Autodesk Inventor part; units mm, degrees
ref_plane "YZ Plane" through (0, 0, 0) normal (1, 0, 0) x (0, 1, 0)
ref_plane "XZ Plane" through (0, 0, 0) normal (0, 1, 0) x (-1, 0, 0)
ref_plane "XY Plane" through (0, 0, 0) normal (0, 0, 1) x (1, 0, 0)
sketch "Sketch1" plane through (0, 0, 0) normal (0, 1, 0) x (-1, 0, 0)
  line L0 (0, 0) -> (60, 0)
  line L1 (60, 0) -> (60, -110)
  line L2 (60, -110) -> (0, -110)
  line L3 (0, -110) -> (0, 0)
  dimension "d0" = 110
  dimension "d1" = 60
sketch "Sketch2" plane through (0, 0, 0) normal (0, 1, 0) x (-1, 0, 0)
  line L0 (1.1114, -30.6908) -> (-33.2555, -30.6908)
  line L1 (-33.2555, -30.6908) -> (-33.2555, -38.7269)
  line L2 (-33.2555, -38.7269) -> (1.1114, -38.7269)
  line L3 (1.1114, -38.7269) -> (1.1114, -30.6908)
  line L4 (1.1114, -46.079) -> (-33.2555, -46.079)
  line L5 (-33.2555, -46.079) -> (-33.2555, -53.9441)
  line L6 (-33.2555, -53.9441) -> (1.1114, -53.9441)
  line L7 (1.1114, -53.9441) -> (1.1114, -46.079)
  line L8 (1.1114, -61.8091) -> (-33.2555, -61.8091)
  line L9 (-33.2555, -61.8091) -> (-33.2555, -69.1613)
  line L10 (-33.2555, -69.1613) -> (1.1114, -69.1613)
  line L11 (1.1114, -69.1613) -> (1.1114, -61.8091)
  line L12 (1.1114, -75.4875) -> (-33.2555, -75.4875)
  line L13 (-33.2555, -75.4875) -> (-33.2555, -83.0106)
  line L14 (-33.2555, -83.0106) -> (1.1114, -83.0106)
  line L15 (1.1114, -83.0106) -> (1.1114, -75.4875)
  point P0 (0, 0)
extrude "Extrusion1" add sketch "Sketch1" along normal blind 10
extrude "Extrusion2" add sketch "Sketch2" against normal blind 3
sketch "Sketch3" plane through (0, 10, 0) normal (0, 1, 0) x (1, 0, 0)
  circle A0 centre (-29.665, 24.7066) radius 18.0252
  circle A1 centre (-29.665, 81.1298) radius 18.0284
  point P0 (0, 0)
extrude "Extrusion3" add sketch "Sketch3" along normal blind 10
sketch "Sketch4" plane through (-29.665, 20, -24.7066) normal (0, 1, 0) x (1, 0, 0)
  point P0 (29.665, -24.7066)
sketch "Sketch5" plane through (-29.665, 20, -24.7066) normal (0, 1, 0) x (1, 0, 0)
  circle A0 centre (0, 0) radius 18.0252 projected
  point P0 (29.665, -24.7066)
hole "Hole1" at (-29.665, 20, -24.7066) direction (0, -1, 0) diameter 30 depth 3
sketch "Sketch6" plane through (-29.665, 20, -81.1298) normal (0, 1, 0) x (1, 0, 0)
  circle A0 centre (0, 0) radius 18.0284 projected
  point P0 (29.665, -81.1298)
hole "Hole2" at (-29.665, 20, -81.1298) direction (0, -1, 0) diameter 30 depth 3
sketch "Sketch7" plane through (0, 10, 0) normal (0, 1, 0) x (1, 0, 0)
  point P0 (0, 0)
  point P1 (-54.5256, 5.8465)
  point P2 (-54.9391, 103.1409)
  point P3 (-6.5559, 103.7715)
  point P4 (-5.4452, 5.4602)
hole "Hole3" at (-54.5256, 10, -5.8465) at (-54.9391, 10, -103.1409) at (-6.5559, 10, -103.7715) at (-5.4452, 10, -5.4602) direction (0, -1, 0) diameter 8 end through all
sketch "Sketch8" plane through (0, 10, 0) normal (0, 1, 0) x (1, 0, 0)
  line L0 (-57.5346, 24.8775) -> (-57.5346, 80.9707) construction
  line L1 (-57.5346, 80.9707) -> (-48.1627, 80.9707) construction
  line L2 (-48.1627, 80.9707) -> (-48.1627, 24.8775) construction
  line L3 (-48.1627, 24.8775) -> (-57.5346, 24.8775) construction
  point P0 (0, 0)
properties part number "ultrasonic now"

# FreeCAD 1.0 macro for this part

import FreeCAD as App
import Part
import Sketcher
Q = App.Units.Quantity


def add_polygon(sketch, points):
    """Adds a closed chain of lines whose ends are joined by coincident constraints."""
    first, n = sketch.GeometryCount, len(points)
    for a, b in zip(points, points[1:] + points[:1]):
        sketch.addGeometry(Part.LineSegment(App.Vector(*a, 0), App.Vector(*b, 0)), False)
    for i in range(n):
        sketch.addConstraint(Sketcher.Constraint("Coincident", first + i, 2, first + (i + 1) % n, 1))

doc = App.newDocument("Part")
body = doc.addObject("PartDesign::Body", "Body")

# Sketch on XZ plane
sketch1 = body.newObject("Sketcher::SketchObject", "Sketch")
sketch1.AttachmentSupport = (doc.getObject("XZ_Plane"), [""])
sketch1.MapMode = "FlatFace"
add_polygon(sketch1, [(-60, 0), (0, 0), (0, -110), (-60, -110)])  # lines 0-3
sketch1.addConstraint([
    Sketcher.Constraint("Horizontal", 0),
    Sketcher.Constraint("Vertical", 1),
    Sketcher.Constraint("Horizontal", 2),
    Sketcher.Constraint("Vertical", 3),
    Sketcher.Constraint("Coincident", 0, 2, -1, 1),
    Sketcher.Constraint("DistanceX", 0, 1, 0, 2, Q("60 mm")),
    Sketcher.Constraint("DistanceY", 1, 2, 1, 1, Q("110 mm")),
])
pad1 = body.newObject("PartDesign::Pad", "Pad")
pad1.Profile = sketch1
pad1.Length = 10
pad1.Reversed = True

# Sketch on XZ plane
sketch2 = body.newObject("Sketcher::SketchObject", "Sketch001")
sketch2.AttachmentSupport = (doc.getObject("XZ_Plane"), [""])
sketch2.MapMode = "FlatFace"
add_polygon(sketch2, [(-1, -39), (-1, -31), (33, -31), (33, -39)])  # lines 0-3
add_polygon(sketch2, [(-1, -54), (-1, -46), (33, -46), (33, -54)])  # lines 4-7
add_polygon(sketch2, [(-1, -69), (-1, -62), (33, -62), (33, -69)])  # lines 8-11
add_polygon(sketch2, [(-1, -83), (-1, -75), (33, -75), (33, -83)])  # lines 12-15
sketch2.addConstraint([
    Sketcher.Constraint("Vertical", 0),
    Sketcher.Constraint("Horizontal", 1),
    Sketcher.Constraint("Vertical", 2),
    Sketcher.Constraint("Horizontal", 3),
    Sketcher.Constraint("Vertical", 4),
    Sketcher.Constraint("Horizontal", 5),
    Sketcher.Constraint("Vertical", 6),
    Sketcher.Constraint("Horizontal", 7),
    Sketcher.Constraint("Vertical", 8),
    Sketcher.Constraint("Horizontal", 9),
    Sketcher.Constraint("Vertical", 10),
    Sketcher.Constraint("Horizontal", 11),
    Sketcher.Constraint("Vertical", 12),
    Sketcher.Constraint("Horizontal", 13),
    Sketcher.Constraint("Vertical", 14),
    Sketcher.Constraint("Horizontal", 15),
    Sketcher.Constraint("Vertical", 3, 2, 4, 2),
    Sketcher.Constraint("Vertical", 2, 2, 5, 2),
    Sketcher.Constraint("Vertical", 7, 2, 8, 2),
    Sketcher.Constraint("Vertical", 6, 2, 9, 2),
    Sketcher.Constraint("Vertical", 11, 2, 12, 2),
    Sketcher.Constraint("Vertical", 10, 2, 13, 2),
    Sketcher.Constraint("DistanceX", 1, 1, 1, 2, Q("34.367 mm")),
    Sketcher.Constraint("DistanceY", 0, 1, 0, 2, Q("8.036 mm")),
    Sketcher.Constraint("DistanceY", 4, 1, 4, 2, Q("7.865 mm")),
    Sketcher.Constraint("DistanceY", 12, 1, 12, 2, Q("7.523 mm")),
    Sketcher.Constraint("DistanceY", 8, 2, 4, 2, Q("15.73 mm")),
    Sketcher.Constraint("DistanceY", 8, 1, 8, 2, Q("7.3522 mm")),
    Sketcher.Constraint("DistanceY", 2, 2, -1, 1, Q("38.727 mm")),
    Sketcher.Constraint("DistanceY", 4, 2, -1, 1, Q("46.079 mm")),
    Sketcher.Constraint("DistanceX", 0, 2, -1, 1, Q("1.1114 mm")),
    Sketcher.Constraint("DistanceY", 12, 2, -1, 1, Q("75.4875 mm")),
])
pad2 = body.newObject("PartDesign::Pad", "Pad001")
pad2.Profile = sketch2
pad2.Length = 3

# Sketch on XZ plane
sketch3 = body.newObject("Sketcher::SketchObject", "Sketch002")
sketch3.AttachmentSupport = (doc.getObject("XZ_Plane"), [""])
sketch3.MapMode = "FlatFace"
sketch3.AttachmentOffset = App.Placement(App.Vector(0, 0, -10), App.Rotation())
sketch3.addGeometry([
    Part.Circle(App.Vector(-30, -25, 0), App.Vector(0, 0, 1), 18),
    Part.Circle(App.Vector(-30, -81, 0), App.Vector(0, 0, 1), 18),
], False)
sketch3.addConstraint([
    Sketcher.Constraint("Vertical", 0, 3, 1, 3),
    Sketcher.Constraint("Diameter", 0, Q("36.0504 mm")),
    Sketcher.Constraint("Diameter", 1, Q("36.0568 mm")),
    Sketcher.Constraint("DistanceX", 0, 3, -1, 1, Q("29.665 mm")),
    Sketcher.Constraint("DistanceY", 0, 3, -1, 1, Q("24.7066 mm")),
    Sketcher.Constraint("DistanceY", 1, 3, -1, 1, Q("81.1298 mm")),
])
pad3 = body.newObject("PartDesign::Pad", "Pad002")
pad3.Profile = sketch3
pad3.Length = 10
pad3.Reversed = True

# Sketch on XZ plane
sketch4 = body.newObject("Sketcher::SketchObject", "Sketch003")
sketch4.AttachmentSupport = (doc.getObject("XZ_Plane"), [""])
sketch4.MapMode = "FlatFace"
sketch4.AttachmentOffset = App.Placement(App.Vector(0, 0, -20), App.Rotation())
sketch4.addGeometry(Part.Circle(App.Vector(-30, -25, 0), App.Vector(0, 0, 1), 15), False)
sketch4.addConstraint([
    Sketcher.Constraint("Diameter", 0, Q("30 mm")),
    Sketcher.Constraint("DistanceX", 0, 3, -1, 1, Q("29.665 mm")),
    Sketcher.Constraint("DistanceY", 0, 3, -1, 1, Q("24.7066 mm")),
])
doc.recompute()
hole = body.newObject("PartDesign::Hole", "Hole")
hole.Profile = sketch4
hole.ThreadType = "None"
hole.Diameter = 30
hole.DepthType = "Dimension"
hole.Depth = 3
hole.DrillPoint = "Flat"
hole.Reversed = True

# Sketch on XZ plane
sketch5 = body.newObject("Sketcher::SketchObject", "Sketch004")
sketch5.AttachmentSupport = (doc.getObject("XZ_Plane"), [""])
sketch5.MapMode = "FlatFace"
sketch5.AttachmentOffset = App.Placement(App.Vector(0, 0, -20), App.Rotation())
sketch5.addGeometry(Part.Circle(App.Vector(-30, -81, 0), App.Vector(0, 0, 1), 15), False)
sketch5.addConstraint([
    Sketcher.Constraint("Diameter", 0, Q("30 mm")),
    Sketcher.Constraint("DistanceX", 0, 3, -1, 1, Q("29.665 mm")),
    Sketcher.Constraint("DistanceY", 0, 3, -1, 1, Q("81.1298 mm")),
])
doc.recompute()
hole2 = body.newObject("PartDesign::Hole", "Hole001")
hole2.Profile = sketch5
hole2.ThreadType = "None"
hole2.Diameter = 30
hole2.DepthType = "Dimension"
hole2.Depth = 3
hole2.DrillPoint = "Flat"
hole2.Reversed = True

# Sketch on XZ plane
sketch6 = body.newObject("Sketcher::SketchObject", "Sketch005")
sketch6.AttachmentSupport = (doc.getObject("XZ_Plane"), [""])
sketch6.MapMode = "FlatFace"
sketch6.AttachmentOffset = App.Placement(App.Vector(0, 0, -10), App.Rotation())
sketch6.addGeometry([
    Part.Circle(App.Vector(-54.5, -5.8, 0), App.Vector(0, 0, 1), 4),
    Part.Circle(App.Vector(-54.9, -103.1, 0), App.Vector(0, 0, 1), 4),
    Part.Circle(App.Vector(-6.6, -103.8, 0), App.Vector(0, 0, 1), 4),
    Part.Circle(App.Vector(-5.4, -5.5, 0), App.Vector(0, 0, 1), 4),
], False)
sketch6.addConstraint([
    Sketcher.Constraint("Equal", 0, 1),
    Sketcher.Constraint("Equal", 1, 2),
    Sketcher.Constraint("Equal", 2, 3),
    Sketcher.Constraint("Diameter", 0, Q("8 mm")),
    Sketcher.Constraint("DistanceX", 1, 3, -1, 1, Q("54.939 mm")),
    Sketcher.Constraint("DistanceY", 1, 3, -1, 1, Q("103.141 mm")),
    Sketcher.Constraint("DistanceX", 2, 3, -1, 1, Q("6.556 mm")),
    Sketcher.Constraint("DistanceY", 2, 3, 0, 3, Q("97.925 mm")),
    Sketcher.Constraint("DistanceX", 1, 3, 3, 3, Q("49.494 mm")),
    Sketcher.Constraint("DistanceX", 0, 3, -1, 1, Q("54.5256 mm")),
    Sketcher.Constraint("DistanceY", 0, 3, -1, 1, Q("5.8465 mm")),
    Sketcher.Constraint("DistanceY", 3, 3, -1, 1, Q("5.4602 mm")),
])
doc.recompute()
hole3 = body.newObject("PartDesign::Hole", "Hole002")
hole3.Profile = sketch6
hole3.ThreadType = "None"
hole3.Diameter = 8
hole3.DepthType = "ThroughAll"
hole3.Reversed = True

doc.recompute()
